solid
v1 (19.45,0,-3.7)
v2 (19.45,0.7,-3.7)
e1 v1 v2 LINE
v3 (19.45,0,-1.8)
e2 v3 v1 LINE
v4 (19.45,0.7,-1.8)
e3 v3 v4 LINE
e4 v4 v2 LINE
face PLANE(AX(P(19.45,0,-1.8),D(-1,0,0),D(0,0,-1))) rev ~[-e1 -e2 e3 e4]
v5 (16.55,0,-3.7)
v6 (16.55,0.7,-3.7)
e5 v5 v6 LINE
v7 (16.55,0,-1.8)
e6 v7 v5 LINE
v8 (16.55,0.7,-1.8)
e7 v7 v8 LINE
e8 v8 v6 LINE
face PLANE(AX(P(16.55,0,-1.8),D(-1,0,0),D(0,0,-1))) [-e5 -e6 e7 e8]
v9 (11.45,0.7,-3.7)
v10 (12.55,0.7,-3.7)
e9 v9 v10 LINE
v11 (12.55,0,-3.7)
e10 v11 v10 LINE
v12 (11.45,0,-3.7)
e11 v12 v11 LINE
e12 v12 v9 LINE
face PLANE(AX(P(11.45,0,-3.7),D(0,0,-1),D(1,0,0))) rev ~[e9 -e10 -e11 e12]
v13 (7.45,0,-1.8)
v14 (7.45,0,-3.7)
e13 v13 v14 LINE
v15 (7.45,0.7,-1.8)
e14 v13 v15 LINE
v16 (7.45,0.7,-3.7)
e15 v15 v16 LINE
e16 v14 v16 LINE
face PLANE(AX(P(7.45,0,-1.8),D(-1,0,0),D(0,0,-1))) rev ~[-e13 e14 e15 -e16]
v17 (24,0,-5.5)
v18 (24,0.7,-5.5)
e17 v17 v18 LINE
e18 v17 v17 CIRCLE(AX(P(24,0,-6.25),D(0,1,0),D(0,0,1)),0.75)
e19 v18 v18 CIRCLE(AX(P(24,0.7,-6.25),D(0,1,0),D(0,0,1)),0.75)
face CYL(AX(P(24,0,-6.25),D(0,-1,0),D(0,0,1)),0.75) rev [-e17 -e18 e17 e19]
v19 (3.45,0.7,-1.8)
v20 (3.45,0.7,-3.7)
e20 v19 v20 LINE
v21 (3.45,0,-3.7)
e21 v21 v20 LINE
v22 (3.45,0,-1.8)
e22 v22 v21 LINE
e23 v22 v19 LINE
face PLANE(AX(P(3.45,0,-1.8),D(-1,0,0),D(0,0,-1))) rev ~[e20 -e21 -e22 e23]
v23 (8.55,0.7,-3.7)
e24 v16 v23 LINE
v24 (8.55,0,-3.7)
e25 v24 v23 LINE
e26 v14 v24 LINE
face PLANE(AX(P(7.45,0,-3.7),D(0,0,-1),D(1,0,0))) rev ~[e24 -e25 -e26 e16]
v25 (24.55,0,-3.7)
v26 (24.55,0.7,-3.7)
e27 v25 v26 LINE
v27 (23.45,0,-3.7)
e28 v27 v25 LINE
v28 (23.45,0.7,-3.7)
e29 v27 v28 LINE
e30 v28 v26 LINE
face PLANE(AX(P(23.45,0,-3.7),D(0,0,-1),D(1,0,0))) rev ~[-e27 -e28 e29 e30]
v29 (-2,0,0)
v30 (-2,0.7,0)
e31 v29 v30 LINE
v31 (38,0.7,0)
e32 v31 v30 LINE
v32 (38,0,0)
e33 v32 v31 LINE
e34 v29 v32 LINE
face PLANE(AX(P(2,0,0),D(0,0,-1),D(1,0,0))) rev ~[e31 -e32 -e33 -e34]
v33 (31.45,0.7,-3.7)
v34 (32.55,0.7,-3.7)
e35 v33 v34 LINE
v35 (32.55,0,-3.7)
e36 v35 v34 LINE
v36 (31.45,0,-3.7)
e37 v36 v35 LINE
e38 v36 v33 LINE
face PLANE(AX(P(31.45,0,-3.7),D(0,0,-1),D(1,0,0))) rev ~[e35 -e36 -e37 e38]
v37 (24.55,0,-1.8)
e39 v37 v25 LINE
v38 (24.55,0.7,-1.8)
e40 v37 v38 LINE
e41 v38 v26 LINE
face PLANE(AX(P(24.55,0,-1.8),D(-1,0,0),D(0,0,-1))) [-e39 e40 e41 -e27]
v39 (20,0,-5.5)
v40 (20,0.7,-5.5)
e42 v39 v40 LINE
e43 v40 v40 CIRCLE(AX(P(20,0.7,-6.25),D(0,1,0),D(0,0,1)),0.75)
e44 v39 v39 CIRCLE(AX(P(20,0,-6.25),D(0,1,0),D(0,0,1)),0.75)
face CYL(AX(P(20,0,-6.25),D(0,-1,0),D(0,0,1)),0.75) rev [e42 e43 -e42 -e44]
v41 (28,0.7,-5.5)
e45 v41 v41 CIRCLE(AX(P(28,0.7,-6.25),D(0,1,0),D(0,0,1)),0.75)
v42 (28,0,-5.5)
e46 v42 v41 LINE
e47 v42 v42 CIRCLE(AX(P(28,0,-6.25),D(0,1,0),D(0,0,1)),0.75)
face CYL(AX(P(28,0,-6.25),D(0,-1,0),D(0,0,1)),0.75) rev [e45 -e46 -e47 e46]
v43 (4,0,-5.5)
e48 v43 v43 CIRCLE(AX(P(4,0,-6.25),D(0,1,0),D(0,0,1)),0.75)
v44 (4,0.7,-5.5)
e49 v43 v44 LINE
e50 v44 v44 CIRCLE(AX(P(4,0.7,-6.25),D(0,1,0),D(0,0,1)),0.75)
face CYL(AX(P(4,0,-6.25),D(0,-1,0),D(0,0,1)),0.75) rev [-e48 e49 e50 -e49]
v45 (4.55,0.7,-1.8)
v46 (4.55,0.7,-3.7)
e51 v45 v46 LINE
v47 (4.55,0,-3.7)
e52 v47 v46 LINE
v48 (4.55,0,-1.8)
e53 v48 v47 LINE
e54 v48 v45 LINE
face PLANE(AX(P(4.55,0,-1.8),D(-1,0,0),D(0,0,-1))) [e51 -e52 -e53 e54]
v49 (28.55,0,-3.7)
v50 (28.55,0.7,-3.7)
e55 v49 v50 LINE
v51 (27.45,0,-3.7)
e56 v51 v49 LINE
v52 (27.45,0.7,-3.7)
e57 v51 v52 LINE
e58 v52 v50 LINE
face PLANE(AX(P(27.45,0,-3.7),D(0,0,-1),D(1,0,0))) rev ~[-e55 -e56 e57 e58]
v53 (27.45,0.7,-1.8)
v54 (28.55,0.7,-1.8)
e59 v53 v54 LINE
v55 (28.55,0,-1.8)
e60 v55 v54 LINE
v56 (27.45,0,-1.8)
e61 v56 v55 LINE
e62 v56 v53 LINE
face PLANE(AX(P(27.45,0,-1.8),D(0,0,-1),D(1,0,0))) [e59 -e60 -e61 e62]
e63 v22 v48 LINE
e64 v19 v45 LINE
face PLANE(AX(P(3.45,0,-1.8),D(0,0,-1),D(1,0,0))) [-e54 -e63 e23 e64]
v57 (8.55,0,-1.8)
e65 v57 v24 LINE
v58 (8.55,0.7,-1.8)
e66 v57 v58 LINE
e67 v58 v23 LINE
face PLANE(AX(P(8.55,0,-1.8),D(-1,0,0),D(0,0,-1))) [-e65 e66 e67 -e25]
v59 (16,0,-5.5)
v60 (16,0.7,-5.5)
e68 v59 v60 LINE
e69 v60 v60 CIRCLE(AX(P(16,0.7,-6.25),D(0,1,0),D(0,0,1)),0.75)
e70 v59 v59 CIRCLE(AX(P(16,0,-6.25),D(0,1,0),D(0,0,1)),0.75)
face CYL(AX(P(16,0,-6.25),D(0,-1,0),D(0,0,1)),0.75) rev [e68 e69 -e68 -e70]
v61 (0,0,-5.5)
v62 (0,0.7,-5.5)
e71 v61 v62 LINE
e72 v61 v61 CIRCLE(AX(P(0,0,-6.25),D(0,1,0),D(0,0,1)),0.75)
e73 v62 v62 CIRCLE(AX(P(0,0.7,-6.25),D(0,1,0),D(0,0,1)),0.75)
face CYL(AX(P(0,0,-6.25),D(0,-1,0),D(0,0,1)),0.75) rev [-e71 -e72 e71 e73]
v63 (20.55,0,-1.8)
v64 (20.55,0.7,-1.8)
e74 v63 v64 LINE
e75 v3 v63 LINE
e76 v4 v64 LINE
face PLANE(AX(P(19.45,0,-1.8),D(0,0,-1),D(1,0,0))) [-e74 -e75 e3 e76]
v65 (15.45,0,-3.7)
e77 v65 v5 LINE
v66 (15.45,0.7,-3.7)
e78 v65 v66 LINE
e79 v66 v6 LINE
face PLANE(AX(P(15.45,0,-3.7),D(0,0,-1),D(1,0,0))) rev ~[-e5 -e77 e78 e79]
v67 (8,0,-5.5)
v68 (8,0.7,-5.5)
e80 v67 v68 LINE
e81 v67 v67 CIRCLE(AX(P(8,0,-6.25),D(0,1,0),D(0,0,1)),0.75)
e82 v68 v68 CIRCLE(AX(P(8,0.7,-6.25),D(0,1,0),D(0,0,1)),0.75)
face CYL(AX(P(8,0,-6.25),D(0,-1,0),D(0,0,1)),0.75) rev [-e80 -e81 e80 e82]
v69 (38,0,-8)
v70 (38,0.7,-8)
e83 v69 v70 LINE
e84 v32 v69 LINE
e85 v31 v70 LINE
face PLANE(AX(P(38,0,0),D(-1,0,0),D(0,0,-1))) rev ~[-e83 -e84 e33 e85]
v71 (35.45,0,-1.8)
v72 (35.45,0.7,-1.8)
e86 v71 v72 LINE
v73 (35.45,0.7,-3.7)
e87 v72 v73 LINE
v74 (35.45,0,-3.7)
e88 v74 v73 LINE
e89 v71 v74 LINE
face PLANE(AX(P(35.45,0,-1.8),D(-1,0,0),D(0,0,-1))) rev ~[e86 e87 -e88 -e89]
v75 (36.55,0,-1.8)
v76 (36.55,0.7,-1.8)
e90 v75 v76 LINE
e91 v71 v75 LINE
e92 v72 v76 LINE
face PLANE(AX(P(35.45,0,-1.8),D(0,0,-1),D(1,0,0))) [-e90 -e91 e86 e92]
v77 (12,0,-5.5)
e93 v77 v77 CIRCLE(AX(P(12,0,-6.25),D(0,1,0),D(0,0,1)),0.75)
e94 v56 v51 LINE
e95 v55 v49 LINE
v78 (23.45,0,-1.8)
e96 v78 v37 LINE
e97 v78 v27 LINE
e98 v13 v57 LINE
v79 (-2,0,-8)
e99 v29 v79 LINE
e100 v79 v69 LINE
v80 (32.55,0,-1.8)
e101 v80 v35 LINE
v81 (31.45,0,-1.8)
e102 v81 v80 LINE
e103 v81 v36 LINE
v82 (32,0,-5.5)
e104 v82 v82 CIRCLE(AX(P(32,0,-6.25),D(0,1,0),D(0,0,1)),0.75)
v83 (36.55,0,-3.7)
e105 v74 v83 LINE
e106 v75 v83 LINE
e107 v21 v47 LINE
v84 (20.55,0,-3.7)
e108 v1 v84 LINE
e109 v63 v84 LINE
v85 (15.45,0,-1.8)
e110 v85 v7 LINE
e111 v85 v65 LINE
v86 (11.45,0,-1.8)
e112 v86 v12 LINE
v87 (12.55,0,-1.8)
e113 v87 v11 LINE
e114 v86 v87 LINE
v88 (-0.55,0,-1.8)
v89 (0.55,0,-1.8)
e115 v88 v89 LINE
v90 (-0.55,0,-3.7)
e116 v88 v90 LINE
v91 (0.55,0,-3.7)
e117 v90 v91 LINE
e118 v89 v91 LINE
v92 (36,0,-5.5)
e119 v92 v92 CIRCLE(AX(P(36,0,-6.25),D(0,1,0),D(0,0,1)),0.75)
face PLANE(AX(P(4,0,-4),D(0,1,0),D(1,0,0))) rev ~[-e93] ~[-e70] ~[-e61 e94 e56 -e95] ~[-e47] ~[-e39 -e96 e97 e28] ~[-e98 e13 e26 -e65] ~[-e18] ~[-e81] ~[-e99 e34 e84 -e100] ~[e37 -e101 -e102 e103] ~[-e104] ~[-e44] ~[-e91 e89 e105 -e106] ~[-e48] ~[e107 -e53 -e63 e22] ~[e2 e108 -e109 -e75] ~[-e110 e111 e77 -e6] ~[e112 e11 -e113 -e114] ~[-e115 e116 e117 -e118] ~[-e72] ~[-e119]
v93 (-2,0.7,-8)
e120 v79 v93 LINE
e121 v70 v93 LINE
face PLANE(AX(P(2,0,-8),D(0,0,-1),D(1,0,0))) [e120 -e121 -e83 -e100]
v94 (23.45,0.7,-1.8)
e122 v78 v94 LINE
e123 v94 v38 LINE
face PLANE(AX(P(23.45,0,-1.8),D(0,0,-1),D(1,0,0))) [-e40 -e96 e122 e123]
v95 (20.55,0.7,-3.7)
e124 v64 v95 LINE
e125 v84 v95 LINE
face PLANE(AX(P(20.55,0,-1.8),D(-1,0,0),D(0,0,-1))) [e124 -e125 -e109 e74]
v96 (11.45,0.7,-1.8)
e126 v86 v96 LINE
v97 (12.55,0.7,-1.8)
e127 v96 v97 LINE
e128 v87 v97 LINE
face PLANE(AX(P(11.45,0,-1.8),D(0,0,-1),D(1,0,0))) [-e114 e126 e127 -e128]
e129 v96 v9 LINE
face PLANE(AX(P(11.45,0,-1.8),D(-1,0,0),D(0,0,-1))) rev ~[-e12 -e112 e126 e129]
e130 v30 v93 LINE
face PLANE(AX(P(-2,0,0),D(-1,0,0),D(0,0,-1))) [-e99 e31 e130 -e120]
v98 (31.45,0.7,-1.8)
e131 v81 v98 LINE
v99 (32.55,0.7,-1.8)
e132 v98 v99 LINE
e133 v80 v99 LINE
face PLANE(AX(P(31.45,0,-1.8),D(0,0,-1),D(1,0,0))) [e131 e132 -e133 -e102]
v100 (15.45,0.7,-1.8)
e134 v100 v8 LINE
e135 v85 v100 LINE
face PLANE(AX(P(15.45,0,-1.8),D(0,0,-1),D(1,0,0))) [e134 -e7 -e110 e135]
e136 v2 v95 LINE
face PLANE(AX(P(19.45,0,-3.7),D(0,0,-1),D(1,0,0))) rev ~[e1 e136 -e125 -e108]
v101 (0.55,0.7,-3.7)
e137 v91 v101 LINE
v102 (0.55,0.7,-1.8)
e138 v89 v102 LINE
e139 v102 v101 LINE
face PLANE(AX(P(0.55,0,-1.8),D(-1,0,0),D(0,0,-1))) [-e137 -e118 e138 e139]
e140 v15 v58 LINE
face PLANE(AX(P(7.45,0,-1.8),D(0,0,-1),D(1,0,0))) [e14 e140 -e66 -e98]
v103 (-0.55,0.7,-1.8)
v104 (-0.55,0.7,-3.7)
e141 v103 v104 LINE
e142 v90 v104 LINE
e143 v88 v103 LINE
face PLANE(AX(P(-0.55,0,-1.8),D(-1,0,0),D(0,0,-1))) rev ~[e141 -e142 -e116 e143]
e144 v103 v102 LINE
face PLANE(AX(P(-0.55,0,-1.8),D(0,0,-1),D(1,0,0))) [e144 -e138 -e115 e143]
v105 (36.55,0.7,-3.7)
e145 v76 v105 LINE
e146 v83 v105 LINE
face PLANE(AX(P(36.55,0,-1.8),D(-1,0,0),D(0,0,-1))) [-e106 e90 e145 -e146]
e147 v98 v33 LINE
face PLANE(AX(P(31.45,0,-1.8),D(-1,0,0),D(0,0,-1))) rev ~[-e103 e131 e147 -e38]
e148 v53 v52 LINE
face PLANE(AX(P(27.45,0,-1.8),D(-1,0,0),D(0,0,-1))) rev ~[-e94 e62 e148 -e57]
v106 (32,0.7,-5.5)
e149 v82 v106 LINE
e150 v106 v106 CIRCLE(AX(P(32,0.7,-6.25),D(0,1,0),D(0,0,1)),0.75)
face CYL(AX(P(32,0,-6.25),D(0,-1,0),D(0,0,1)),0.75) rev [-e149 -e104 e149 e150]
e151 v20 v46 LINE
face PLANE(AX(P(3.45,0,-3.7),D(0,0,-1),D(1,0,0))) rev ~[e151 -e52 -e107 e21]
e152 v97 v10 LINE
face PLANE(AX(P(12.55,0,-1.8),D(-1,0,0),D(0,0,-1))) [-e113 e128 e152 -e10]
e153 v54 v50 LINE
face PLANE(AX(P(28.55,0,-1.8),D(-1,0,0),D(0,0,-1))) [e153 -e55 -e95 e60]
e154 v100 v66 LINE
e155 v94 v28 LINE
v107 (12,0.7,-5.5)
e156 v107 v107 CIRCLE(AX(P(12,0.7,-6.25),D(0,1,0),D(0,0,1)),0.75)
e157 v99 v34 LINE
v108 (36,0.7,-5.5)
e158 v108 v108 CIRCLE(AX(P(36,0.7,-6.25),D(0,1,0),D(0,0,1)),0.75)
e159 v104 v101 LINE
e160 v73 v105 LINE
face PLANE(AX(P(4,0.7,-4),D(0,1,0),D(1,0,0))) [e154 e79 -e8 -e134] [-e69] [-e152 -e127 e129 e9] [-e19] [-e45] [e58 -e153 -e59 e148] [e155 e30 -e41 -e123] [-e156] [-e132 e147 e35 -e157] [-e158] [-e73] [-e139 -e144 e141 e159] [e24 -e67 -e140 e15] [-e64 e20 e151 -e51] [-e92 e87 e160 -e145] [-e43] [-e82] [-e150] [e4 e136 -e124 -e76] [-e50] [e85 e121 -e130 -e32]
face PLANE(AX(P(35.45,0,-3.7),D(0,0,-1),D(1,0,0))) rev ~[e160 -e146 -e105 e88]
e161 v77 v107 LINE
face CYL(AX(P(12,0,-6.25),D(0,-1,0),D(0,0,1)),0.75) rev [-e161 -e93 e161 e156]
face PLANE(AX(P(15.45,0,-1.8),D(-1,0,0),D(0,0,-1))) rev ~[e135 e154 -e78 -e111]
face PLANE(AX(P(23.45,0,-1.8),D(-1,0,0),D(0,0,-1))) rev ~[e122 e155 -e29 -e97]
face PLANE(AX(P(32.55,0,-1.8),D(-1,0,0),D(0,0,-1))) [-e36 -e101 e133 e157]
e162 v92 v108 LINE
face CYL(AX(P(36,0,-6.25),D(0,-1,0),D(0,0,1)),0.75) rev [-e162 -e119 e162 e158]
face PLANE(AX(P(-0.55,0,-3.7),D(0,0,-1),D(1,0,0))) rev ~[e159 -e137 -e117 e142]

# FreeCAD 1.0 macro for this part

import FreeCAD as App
import Part
import Sketcher
Q = App.Units.Quantity

doc = App.newDocument("Part")
body = doc.addObject("PartDesign::Body", "Body")

# Sketch on XZ plane
sketch1 = body.newObject("Sketcher::SketchObject", "Sketch")
sketch1.AttachmentSupport = (doc.getObject("XZ_Plane"), [""])
sketch1.MapMode = "FlatFace"
sketch1.addGeometry([
    Part.LineSegment(App.Vector(-2, -8, 0), App.Vector(-2, 0, 0)),  # 0
    Part.LineSegment(App.Vector(-2, 0, 0), App.Vector(2, 0, 0)),  # 1
    Part.LineSegment(App.Vector(2, 0, 0), App.Vector(2, -8, 0)),  # 2
    Part.LineSegment(App.Vector(2, -8, 0), App.Vector(-2, -8, 0)),  # 3
    Part.LineSegment(App.Vector(0.6, -1.8, 0), App.Vector(-0.6, -1.8, 0)),  # 4
    Part.LineSegment(App.Vector(-0.6, -1.8, 0), App.Vector(-0.6, -3.7, 0)),  # 5
    Part.LineSegment(App.Vector(-0.6, -3.7, 0), App.Vector(0.6, -3.7, 0)),  # 6
    Part.LineSegment(App.Vector(0.6, -3.7, 0), App.Vector(0.6, -1.8, 0)),  # 7
    Part.Circle(App.Vector(0, -6.2, 0), App.Vector(0, 0, 1), 0.8),  # 8
], False)
sketch1.addConstraint([
    Sketcher.Constraint("Coincident", 0, 2, 1, 1),
    Sketcher.Constraint("Coincident", 1, 2, 2, 1),
    Sketcher.Constraint("Coincident", 2, 2, 3, 1),
    Sketcher.Constraint("Coincident", 3, 2, 0, 1),
    Sketcher.Constraint("Coincident", 4, 2, 5, 1),
    Sketcher.Constraint("Coincident", 5, 2, 6, 1),
    Sketcher.Constraint("Coincident", 6, 2, 7, 1),
    Sketcher.Constraint("Coincident", 7, 2, 4, 1),
    Sketcher.Constraint("Vertical", 0),
    Sketcher.Constraint("Horizontal", 1),
    Sketcher.Constraint("Vertical", 2),
    Sketcher.Constraint("Horizontal", 3),
    Sketcher.Constraint("Horizontal", 4),
    Sketcher.Constraint("Vertical", 5),
    Sketcher.Constraint("Horizontal", 6),
    Sketcher.Constraint("Vertical", 7),
    Sketcher.Constraint("Symmetric", 0, 2, 1, 2, -1, 1),
    Sketcher.Constraint("PointOnObject", 8, 3, -2),
    Sketcher.Constraint("Diameter", 8, Q("1.5 mm")),
    Sketcher.Constraint("DistanceX", 1, 1, 1, 2, Q("4 mm")),
    Sketcher.Constraint("DistanceY", 0, 1, 0, 2, Q("8 mm")),
    Sketcher.Constraint("DistanceX", 4, 2, 4, 1, Q("1.1 mm")),
    Sketcher.Constraint("DistanceY", 5, 2, 5, 1, Q("1.9 mm")),
    Sketcher.Constraint("DistanceY", 4, 2, -1, 1, Q("1.8 mm")),
    Sketcher.Constraint("DistanceY", 8, 3, -1, 1, Q("6.25 mm")),
    Sketcher.Constraint("DistanceX", 4, 2, -1, 1, Q("0.55 mm")),
])
pad1 = body.newObject("PartDesign::Pad", "Pad")
pad1.Profile = sketch1
pad1.Length = 0.7
pad1.Reversed = True
doc.recompute()

linearpattern = body.newObject("PartDesign::LinearPattern", "LinearPattern")
linearpattern.Originals = [pad1]
linearpattern.Direction = (doc.getObject("X_Axis"), [""])
linearpattern.Mode = "offset"
linearpattern.Offset = 4
linearpattern.Occurrences = 10
body.Tip = linearpattern

doc.recompute()
